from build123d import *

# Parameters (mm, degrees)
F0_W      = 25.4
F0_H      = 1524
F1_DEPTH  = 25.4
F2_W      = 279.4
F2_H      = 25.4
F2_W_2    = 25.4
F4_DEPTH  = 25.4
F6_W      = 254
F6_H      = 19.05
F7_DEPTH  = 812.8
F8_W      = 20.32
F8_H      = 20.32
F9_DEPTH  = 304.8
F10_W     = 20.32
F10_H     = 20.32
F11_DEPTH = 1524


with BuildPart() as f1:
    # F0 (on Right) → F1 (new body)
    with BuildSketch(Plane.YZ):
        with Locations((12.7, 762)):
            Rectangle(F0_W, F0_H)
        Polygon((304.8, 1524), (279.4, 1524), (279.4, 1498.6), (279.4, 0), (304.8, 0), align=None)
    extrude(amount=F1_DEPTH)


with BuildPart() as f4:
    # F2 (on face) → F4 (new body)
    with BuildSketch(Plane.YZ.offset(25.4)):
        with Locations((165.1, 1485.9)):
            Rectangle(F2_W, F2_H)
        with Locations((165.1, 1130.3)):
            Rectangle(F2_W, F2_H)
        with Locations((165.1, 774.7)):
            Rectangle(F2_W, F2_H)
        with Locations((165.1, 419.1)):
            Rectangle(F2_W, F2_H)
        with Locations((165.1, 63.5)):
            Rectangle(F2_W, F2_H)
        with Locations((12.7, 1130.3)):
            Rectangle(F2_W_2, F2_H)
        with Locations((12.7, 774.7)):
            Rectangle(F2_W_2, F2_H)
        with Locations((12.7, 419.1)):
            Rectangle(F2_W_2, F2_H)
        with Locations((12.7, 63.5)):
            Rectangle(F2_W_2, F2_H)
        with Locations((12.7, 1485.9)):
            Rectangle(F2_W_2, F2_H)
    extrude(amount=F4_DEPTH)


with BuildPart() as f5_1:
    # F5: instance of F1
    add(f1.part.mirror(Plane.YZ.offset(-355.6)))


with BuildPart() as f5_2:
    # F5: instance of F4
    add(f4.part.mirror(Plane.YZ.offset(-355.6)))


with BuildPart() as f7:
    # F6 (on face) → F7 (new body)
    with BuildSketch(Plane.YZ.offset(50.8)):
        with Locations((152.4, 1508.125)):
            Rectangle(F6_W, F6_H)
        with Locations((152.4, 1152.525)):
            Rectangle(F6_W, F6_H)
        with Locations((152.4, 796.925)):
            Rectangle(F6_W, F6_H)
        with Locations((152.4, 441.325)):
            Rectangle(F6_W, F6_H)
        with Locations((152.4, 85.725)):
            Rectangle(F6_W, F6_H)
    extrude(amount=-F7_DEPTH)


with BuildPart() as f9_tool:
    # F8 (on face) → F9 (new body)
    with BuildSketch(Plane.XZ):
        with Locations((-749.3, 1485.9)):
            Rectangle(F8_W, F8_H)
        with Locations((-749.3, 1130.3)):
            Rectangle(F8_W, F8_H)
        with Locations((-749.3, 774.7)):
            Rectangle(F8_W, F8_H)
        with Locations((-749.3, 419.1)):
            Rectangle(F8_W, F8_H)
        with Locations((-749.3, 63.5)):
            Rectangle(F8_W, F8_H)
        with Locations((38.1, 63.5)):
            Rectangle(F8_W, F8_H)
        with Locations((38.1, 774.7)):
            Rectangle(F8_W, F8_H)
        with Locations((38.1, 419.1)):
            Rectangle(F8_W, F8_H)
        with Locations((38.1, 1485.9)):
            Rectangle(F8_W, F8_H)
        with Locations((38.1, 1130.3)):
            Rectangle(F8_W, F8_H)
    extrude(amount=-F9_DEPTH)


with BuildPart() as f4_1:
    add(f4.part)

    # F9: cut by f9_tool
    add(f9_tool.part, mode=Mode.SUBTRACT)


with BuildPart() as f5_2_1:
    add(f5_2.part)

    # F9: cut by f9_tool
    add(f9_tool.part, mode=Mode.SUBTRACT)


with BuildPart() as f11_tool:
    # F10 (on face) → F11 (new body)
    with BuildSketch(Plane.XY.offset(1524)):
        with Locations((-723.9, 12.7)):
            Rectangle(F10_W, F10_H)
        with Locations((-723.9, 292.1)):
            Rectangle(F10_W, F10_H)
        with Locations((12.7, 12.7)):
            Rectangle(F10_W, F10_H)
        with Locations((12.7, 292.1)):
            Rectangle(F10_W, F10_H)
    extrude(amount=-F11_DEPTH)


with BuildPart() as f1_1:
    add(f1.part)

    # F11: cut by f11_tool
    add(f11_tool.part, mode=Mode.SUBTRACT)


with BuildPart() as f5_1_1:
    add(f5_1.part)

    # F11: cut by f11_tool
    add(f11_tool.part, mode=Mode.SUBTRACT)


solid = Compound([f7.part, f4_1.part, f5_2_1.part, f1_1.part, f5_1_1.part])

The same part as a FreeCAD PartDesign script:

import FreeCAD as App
import Part
import Sketcher
from FreeCAD import Vector
Q = App.Units.Quantity


def add_polygon(sketch, points):
    """Adds a closed chain of lines whose ends are joined by coincident constraints."""
    first, n = sketch.GeometryCount, len(points)
    for a, b in zip(points, points[1:] + points[:1]):
        sketch.addGeometry(Part.LineSegment(App.Vector(*a, 0), App.Vector(*b, 0)), False)
    for i in range(n):
        sketch.addConstraint(Sketcher.Constraint("Coincident", first + i, 2, first + (i + 1) % n, 1))

doc = App.newDocument("Part")
body = doc.addObject("PartDesign::Body", "Body")
body.AllowCompound = True

# Sketch on YZ plane
sketch1 = body.newObject("Sketcher::SketchObject", "Sketch")
sketch1.AttachmentSupport = (doc.getObject("YZ_Plane"), [""])
sketch1.MapMode = "FlatFace"
add_polygon(sketch1, [(0, 1524), (0, 0), (25, 0), (25, 1524)])  # lines 0-3
add_polygon(sketch1, [(305, 1524), (279, 1524), (279, 0), (305, 0)])  # lines 4-7
sketch1.addConstraint(Sketcher.Constraint("Vertical", 0))
sketch1.addConstraint(Sketcher.Constraint("Horizontal", 1))
sketch1.addConstraint(Sketcher.Constraint("Vertical", 2))
sketch1.addConstraint(Sketcher.Constraint("Horizontal", 3))
sketch1.addConstraint(Sketcher.Constraint("Horizontal", 4))
sketch1.addConstraint(Sketcher.Constraint("Vertical", 5))
sketch1.addConstraint(Sketcher.Constraint("Horizontal", 6))
sketch1.addConstraint(Sketcher.Constraint("Vertical", 7))
sketch1.addConstraint(Sketcher.Constraint("Coincident", 0, 2, -1, 1))
sketch1.addConstraint(Sketcher.Constraint("PointOnObject", 5, 2, -1))
sketch1.addConstraint(Sketcher.Constraint("Horizontal", 3, 2, 4, 2))
sketch1.addConstraint(Sketcher.Constraint("Equal", 3, 4))
sketch1.addConstraint(Sketcher.Constraint("DistanceX", 1, 1, 1, 2, Q("1 in")))
sketch1.addConstraint(Sketcher.Constraint("DistanceY", 0, 2, 0, 1, Q("60 in")))
sketch1.addConstraint(Sketcher.Constraint("DistanceX", -1, 1, 4, 2, Q("11 in")))
pad1 = body.newObject("PartDesign::Pad", "Pad")
pad1.Profile = sketch1
pad1.Length = Q("1 in")
body2 = doc.addObject("PartDesign::Body", "Body001")
body2.AllowCompound = True

# Sketch on YZ plane
sketch2 = body2.newObject("Sketcher::SketchObject", "Sketch001")
sketch2.AttachmentSupport = (doc.getObject("YZ_Plane001"), [""])
sketch2.MapMode = "FlatFace"
sketch2.AttachmentOffset = App.Placement(Vector(0, 0, 1 * 25.4), App.Rotation())
add_polygon(sketch2, [(305, 1473), (305, 1499), (0, 1499), (0, 1473)])  # lines 0-3
add_polygon(sketch2, [(305, 1118), (305, 1143), (0, 1143), (0, 1118)])  # lines 4-7
add_polygon(sketch2, [(305, 762), (305, 787), (0, 787), (0, 762)])  # lines 8-11
add_polygon(sketch2, [(305, 406), (305, 432), (0, 432), (0, 406)])  # lines 12-15
add_polygon(sketch2, [(305, 51), (305, 76), (0, 76), (0, 51)])  # lines 16-19
sketch2.addConstraint(Sketcher.Constraint("Vertical", 0))
sketch2.addConstraint(Sketcher.Constraint("Horizontal", 1))
sketch2.addConstraint(Sketcher.Constraint("Vertical", 2))
sketch2.addConstraint(Sketcher.Constraint("Horizontal", 3))
sketch2.addConstraint(Sketcher.Constraint("Vertical", 4))
sketch2.addConstraint(Sketcher.Constraint("Horizontal", 5))
sketch2.addConstraint(Sketcher.Constraint("Vertical", 6))
sketch2.addConstraint(Sketcher.Constraint("Horizontal", 7))
sketch2.addConstraint(Sketcher.Constraint("Vertical", 8))
sketch2.addConstraint(Sketcher.Constraint("Horizontal", 9))
sketch2.addConstraint(Sketcher.Constraint("Vertical", 10))
sketch2.addConstraint(Sketcher.Constraint("Horizontal", 11))
sketch2.addConstraint(Sketcher.Constraint("Vertical", 12))
sketch2.addConstraint(Sketcher.Constraint("Horizontal", 13))
sketch2.addConstraint(Sketcher.Constraint("Vertical", 14))
sketch2.addConstraint(Sketcher.Constraint("Horizontal", 15))
sketch2.addConstraint(Sketcher.Constraint("Vertical", 16))
sketch2.addConstraint(Sketcher.Constraint("Horizontal", 17))
sketch2.addConstraint(Sketcher.Constraint("Vertical", 18))
sketch2.addConstraint(Sketcher.Constraint("Horizontal", 19))
sketch2.addConstraint(Sketcher.Constraint("PointOnObject", 1, 2, -2))
sketch2.addConstraint(Sketcher.Constraint("PointOnObject", 5, 2, -2))
sketch2.addConstraint(Sketcher.Constraint("PointOnObject", 9, 2, -2))
sketch2.addConstraint(Sketcher.Constraint("PointOnObject", 13, 2, -2))
sketch2.addConstraint(Sketcher.Constraint("PointOnObject", 17, 2, -2))
sketch2.addConstraint(Sketcher.Constraint("Vertical", 3, 2, 4, 2))
sketch2.addConstraint(Sketcher.Constraint("Vertical", 7, 2, 8, 2))
sketch2.addConstraint(Sketcher.Constraint("Vertical", 11, 2, 12, 2))
sketch2.addConstraint(Sketcher.Constraint("Vertical", 15, 2, 16, 2))
sketch2.addConstraint(Sketcher.Constraint("Equal", 2, 4))
sketch2.addConstraint(Sketcher.Constraint("Equal", 6, 8))
sketch2.addConstraint(Sketcher.Constraint("Equal", 10, 12))
sketch2.addConstraint(Sketcher.Constraint("Equal", 14, 16))
sketch2.addConstraint(Sketcher.Constraint("DistanceX", 1, 2, 1, 1, Q("12 in")))
sketch2.addConstraint(Sketcher.Constraint("DistanceY", 0, 1, 0, 2, Q("1 in")))
sketch2.addConstraint(Sketcher.Constraint("DistanceY", -1, 1, 0, 2, Q("59 in")))
sketch2.addConstraint(Sketcher.Constraint("DistanceY", -1, 1, 4, 2, Q("45 in")))
sketch2.addConstraint(Sketcher.Constraint("DistanceY", -1, 1, 8, 2, Q("31 in")))
sketch2.addConstraint(Sketcher.Constraint("DistanceY", -1, 1, 12, 2, Q("17 in")))
sketch2.addConstraint(Sketcher.Constraint("DistanceY", -1, 1, 16, 2, Q("3 in")))
pad2 = body2.newObject("PartDesign::Pad", "Pad001")
pad2.Profile = sketch2
pad2.Length = Q("1 in")
body3 = doc.addObject("PartDesign::Body", "Body002")
body3.AllowCompound = True
doc.recompute()

mirroring = doc.addObject("Part::Mirroring", "Mirroring")
mirroring.Source = body
mirroring.Base = Vector(-355.6, 0, 0)
mirroring.Normal = Vector(1, 0, 0)
body3.BaseFeature = mirroring
doc.recompute()
body4 = doc.addObject("PartDesign::Body", "Body003")
body4.AllowCompound = True
doc.recompute()

mirroring2 = doc.addObject("Part::Mirroring", "Mirroring001")
mirroring2.Source = body2
mirroring2.Base = Vector(-355.6, 0, 0)
mirroring2.Normal = Vector(1, 0, 0)
body4.BaseFeature = mirroring2
doc.recompute()
body5 = doc.addObject("PartDesign::Body", "Body004")
body5.AllowCompound = True

# Sketch on YZ plane
sketch3 = body5.newObject("Sketcher::SketchObject", "Sketch002")
sketch3.AttachmentSupport = (doc.getObject("YZ_Plane004"), [""])
sketch3.MapMode = "FlatFace"
sketch3.AttachmentOffset = App.Placement(Vector(0, 0, 2 * 25.4), App.Rotation())
add_polygon(sketch3, [(25, 1518), (25, 1499), (279, 1499), (279, 1518)])  # lines 0-3
add_polygon(sketch3, [(25, 1162), (25, 1143), (279, 1143), (279, 1162)])  # lines 4-7
add_polygon(sketch3, [(25, 806), (25, 787), (279, 787), (279, 806)])  # lines 8-11
add_polygon(sketch3, [(25, 451), (25, 432), (279, 432), (279, 451)])  # lines 12-15
add_polygon(sketch3, [(25, 95), (25, 76), (279, 76), (279, 95)])  # lines 16-19
sketch3.addConstraint(Sketcher.Constraint("Vertical", 0))
sketch3.addConstraint(Sketcher.Constraint("Horizontal", 1))
sketch3.addConstraint(Sketcher.Constraint("Vertical", 2))
sketch3.addConstraint(Sketcher.Constraint("Horizontal", 3))
sketch3.addConstraint(Sketcher.Constraint("Vertical", 4))
sketch3.addConstraint(Sketcher.Constraint("Horizontal", 5))
sketch3.addConstraint(Sketcher.Constraint("Vertical", 6))
sketch3.addConstraint(Sketcher.Constraint("Horizontal", 7))
sketch3.addConstraint(Sketcher.Constraint("Vertical", 8))
sketch3.addConstraint(Sketcher.Constraint("Horizontal", 9))
sketch3.addConstraint(Sketcher.Constraint("Vertical", 10))
sketch3.addConstraint(Sketcher.Constraint("Horizontal", 11))
sketch3.addConstraint(Sketcher.Constraint("Vertical", 12))
sketch3.addConstraint(Sketcher.Constraint("Horizontal", 13))
sketch3.addConstraint(Sketcher.Constraint("Vertical", 14))
sketch3.addConstraint(Sketcher.Constraint("Horizontal", 15))
sketch3.addConstraint(Sketcher.Constraint("Vertical", 16))
sketch3.addConstraint(Sketcher.Constraint("Horizontal", 17))
sketch3.addConstraint(Sketcher.Constraint("Vertical", 18))
sketch3.addConstraint(Sketcher.Constraint("Horizontal", 19))
sketch3.addConstraint(Sketcher.Constraint("Vertical", 3, 2, 4, 2))
sketch3.addConstraint(Sketcher.Constraint("Vertical", 2, 2, 5, 2))
sketch3.addConstraint(Sketcher.Constraint("Vertical", 7, 2, 8, 2))
sketch3.addConstraint(Sketcher.Constraint("Vertical", 6, 2, 9, 2))
sketch3.addConstraint(Sketcher.Constraint("Vertical", 11, 2, 12, 2))
sketch3.addConstraint(Sketcher.Constraint("Vertical", 10, 2, 13, 2))
sketch3.addConstraint(Sketcher.Constraint("Vertical", 15, 2, 16, 2))
sketch3.addConstraint(Sketcher.Constraint("Vertical", 14, 2, 17, 2))
sketch3.addConstraint(Sketcher.Constraint("Equal", 2, 4))
sketch3.addConstraint(Sketcher.Constraint("Equal", 6, 8))
sketch3.addConstraint(Sketcher.Constraint("Equal", 10, 12))
sketch3.addConstraint(Sketcher.Constraint("Equal", 14, 16))
sketch3.addConstraint(Sketcher.Constraint("DistanceX", 1, 1, 1, 2, Q("10 in")))
sketch3.addConstraint(Sketcher.Constraint("DistanceX", -1, 1, 0, 2, Q("1 in")))
sketch3.addConstraint(Sketcher.Constraint("DistanceY", -1, 1, 0, 2, Q("59 in")))
sketch3.addConstraint(Sketcher.Constraint("DistanceY", -1, 1, 4, 2, Q("45 in")))
sketch3.addConstraint(Sketcher.Constraint("DistanceY", -1, 1, 8, 2, Q("31 in")))
sketch3.addConstraint(Sketcher.Constraint("DistanceY", -1, 1, 12, 2, Q("17 in")))
sketch3.addConstraint(Sketcher.Constraint("DistanceY", -1, 1, 16, 2, Q("3 in")))
sketch3.addConstraint(Sketcher.Constraint("DistanceY", 0, 2, 0, 1, Q("0.75 in")))
pad3 = body5.newObject("PartDesign::Pad", "Pad002")
pad3.Profile = sketch3
pad3.Length = Q("32 in")
pad3.Reversed = True
body6 = doc.addObject("PartDesign::Body", "Body005")
body6.AllowCompound = True

# Sketch on XZ plane
sketch4 = body6.newObject("Sketcher::SketchObject", "Sketch003")
sketch4.AttachmentSupport = (doc.getObject("XZ_Plane005"), [""])
sketch4.MapMode = "FlatFace"
add_polygon(sketch4, [(-759, 1496), (-759, 1476), (-739, 1476), (-739, 1496)])  # lines 0-3
add_polygon(sketch4, [(-759, 1140), (-759, 1120), (-739, 1120), (-739, 1140)])  # lines 4-7
add_polygon(sketch4, [(-759, 785), (-759, 765), (-739, 765), (-739, 785)])  # lines 8-11
add_polygon(sketch4, [(-759, 429), (-759, 409), (-739, 409), (-739, 429)])  # lines 12-15
add_polygon(sketch4, [(-759, 74), (-759, 53), (-739, 53), (-739, 74)])  # lines 16-19
add_polygon(sketch4, [(28, 74), (28, 53), (48, 53), (48, 74)])  # lines 20-23
add_polygon(sketch4, [(28, 785), (28, 765), (48, 765), (48, 785)])  # lines 24-27
add_polygon(sketch4, [(28, 429), (28, 409), (48, 409), (48, 429)])  # lines 28-31
add_polygon(sketch4, [(28, 1496), (28, 1476), (48, 1476), (48, 1496)])  # lines 32-35
add_polygon(sketch4, [(28, 1140), (28, 1120), (48, 1120), (48, 1140)])  # lines 36-39
sketch4.addConstraint(Sketcher.Constraint("Vertical", 0))
sketch4.addConstraint(Sketcher.Constraint("Horizontal", 1))
sketch4.addConstraint(Sketcher.Constraint("Vertical", 2))
sketch4.addConstraint(Sketcher.Constraint("Horizontal", 3))
sketch4.addConstraint(Sketcher.Constraint("Vertical", 4))
sketch4.addConstraint(Sketcher.Constraint("Horizontal", 5))
sketch4.addConstraint(Sketcher.Constraint("Vertical", 6))
sketch4.addConstraint(Sketcher.Constraint("Horizontal", 7))
sketch4.addConstraint(Sketcher.Constraint("Vertical", 8))
sketch4.addConstraint(Sketcher.Constraint("Horizontal", 9))
sketch4.addConstraint(Sketcher.Constraint("Vertical", 10))
sketch4.addConstraint(Sketcher.Constraint("Horizontal", 11))
sketch4.addConstraint(Sketcher.Constraint("Vertical", 12))
sketch4.addConstraint(Sketcher.Constraint("Horizontal", 13))
sketch4.addConstraint(Sketcher.Constraint("Vertical", 14))
sketch4.addConstraint(Sketcher.Constraint("Horizontal", 15))
sketch4.addConstraint(Sketcher.Constraint("Vertical", 16))
sketch4.addConstraint(Sketcher.Constraint("Horizontal", 17))
sketch4.addConstraint(Sketcher.Constraint("Vertical", 18))
sketch4.addConstraint(Sketcher.Constraint("Horizontal", 19))
sketch4.addConstraint(Sketcher.Constraint("Vertical", 20))
sketch4.addConstraint(Sketcher.Constraint("Horizontal", 21))
sketch4.addConstraint(Sketcher.Constraint("Vertical", 22))
sketch4.addConstraint(Sketcher.Constraint("Horizontal", 23))
sketch4.addConstraint(Sketcher.Constraint("Vertical", 24))
sketch4.addConstraint(Sketcher.Constraint("Horizontal", 25))
sketch4.addConstraint(Sketcher.Constraint("Vertical", 26))
sketch4.addConstraint(Sketcher.Constraint("Horizontal", 27))
sketch4.addConstraint(Sketcher.Constraint("Vertical", 28))
sketch4.addConstraint(Sketcher.Constraint("Horizontal", 29))
sketch4.addConstraint(Sketcher.Constraint("Vertical", 30))
sketch4.addConstraint(Sketcher.Constraint("Horizontal", 31))
sketch4.addConstraint(Sketcher.Constraint("Vertical", 32))
sketch4.addConstraint(Sketcher.Constraint("Horizontal", 33))
sketch4.addConstraint(Sketcher.Constraint("Vertical", 34))
sketch4.addConstraint(Sketcher.Constraint("Horizontal", 35))
sketch4.addConstraint(Sketcher.Constraint("Vertical", 36))
sketch4.addConstraint(Sketcher.Constraint("Horizontal", 37))
sketch4.addConstraint(Sketcher.Constraint("Vertical", 38))
sketch4.addConstraint(Sketcher.Constraint("Horizontal", 39))
sketch4.addConstraint(Sketcher.Constraint("Horizontal", 17, 2, 20, 2))
sketch4.addConstraint(Sketcher.Constraint("Horizontal", 19, 2, 22, 2))
sketch4.addConstraint(Sketcher.Constraint("Horizontal", 9, 2, 24, 2))
sketch4.addConstraint(Sketcher.Constraint("Horizontal", 11, 2, 26, 2))
sketch4.addConstraint(Sketcher.Constraint("Horizontal", 13, 2, 28, 2))
sketch4.addConstraint(Sketcher.Constraint("Horizontal", 15, 2, 30, 2))
sketch4.addConstraint(Sketcher.Constraint("Horizontal", 1, 2, 32, 2))
sketch4.addConstraint(Sketcher.Constraint("Horizontal", 3, 2, 34, 2))
sketch4.addConstraint(Sketcher.Constraint("Horizontal", 5, 2, 36, 2))
sketch4.addConstraint(Sketcher.Constraint("Horizontal", 7, 2, 38, 2))
sketch4.addConstraint(Sketcher.Constraint("Vertical", 3, 2, 4, 2))
sketch4.addConstraint(Sketcher.Constraint("Vertical", 2, 2, 5, 2))
sketch4.addConstraint(Sketcher.Constraint("Vertical", 7, 2, 8, 2))
sketch4.addConstraint(Sketcher.Constraint("Vertical", 6, 2, 9, 2))
sketch4.addConstraint(Sketcher.Constraint("Vertical", 11, 2, 12, 2))
sketch4.addConstraint(Sketcher.Constraint("Vertical", 10, 2, 13, 2))
sketch4.addConstraint(Sketcher.Constraint("Vertical", 15, 2, 16, 2))
sketch4.addConstraint(Sketcher.Constraint("Vertical", 14, 2, 17, 2))
sketch4.addConstraint(Sketcher.Constraint("Vertical", 23, 2, 24, 2))
sketch4.addConstraint(Sketcher.Constraint("Vertical", 22, 2, 25, 2))
sketch4.addConstraint(Sketcher.Constraint("Vertical", 27, 2, 28, 2))
sketch4.addConstraint(Sketcher.Constraint("Vertical", 26, 2, 29, 2))
sketch4.addConstraint(Sketcher.Constraint("Vertical", 31, 2, 32, 2))
sketch4.addConstraint(Sketcher.Constraint("Vertical", 30, 2, 33, 2))
sketch4.addConstraint(Sketcher.Constraint("Vertical", 35, 2, 36, 2))
sketch4.addConstraint(Sketcher.Constraint("Vertical", 34, 2, 37, 2))
sketch4.addConstraint(Sketcher.Constraint("Equal", 19, 21))
sketch4.addConstraint(Sketcher.Constraint("Equal", 39, 0))
sketch4.addConstraint(Sketcher.Constraint("Equal", 2, 4))
sketch4.addConstraint(Sketcher.Constraint("Equal", 6, 8))
sketch4.addConstraint(Sketcher.Constraint("Equal", 10, 12))
sketch4.addConstraint(Sketcher.Constraint("Equal", 14, 16))
sketch4.addConstraint(Sketcher.Constraint("DistanceX", 1, 1, 1, 2, Q("0.8 in")))
sketch4.addConstraint(Sketcher.Constraint("DistanceY", 4, 2, 0, 2, Q("14 in")))
sketch4.addConstraint(Sketcher.Constraint("DistanceY", 8, 2, 4, 2, Q("14 in")))
sketch4.addConstraint(Sketcher.Constraint("DistanceY", 12, 2, 8, 2, Q("14 in")))
sketch4.addConstraint(Sketcher.Constraint("DistanceY", 16, 2, 12, 2, Q("14 in")))
sketch4.addConstraint(Sketcher.Constraint("DistanceX", 16, 2, 20, 2, Q("31 in")))
sketch4.addConstraint(Sketcher.Constraint("DistanceX", 0, 2, -1, 1, Q("29.9 in")))
sketch4.addConstraint(Sketcher.Constraint("DistanceY", -1, 1, 0, 2, Q("58.1 in")))
pad4 = body6.newObject("PartDesign::Pad", "Pad003")
pad4.Profile = sketch4
pad4.Length = Q("12 in")
pad4.Reversed = True
body2.AllowCompound = True
doc.recompute()

body7 = doc.addObject("PartDesign::Body", "Body006")
body7.BaseFeature = body6
boolean = body2.newObject("PartDesign::Boolean", "Boolean")
boolean.Type = "Cut"
boolean.addObjects([body7])
doc.recompute()
body4.AllowCompound = True
doc.recompute()

boolean2 = body4.newObject("PartDesign::Boolean", "Boolean001")
boolean2.Type = "Cut"
boolean2.addObjects([body6])
body8 = doc.addObject("PartDesign::Body", "Body007")
body8.AllowCompound = True

# Sketch on XY plane
sketch5 = body8.newObject("Sketcher::SketchObject", "Sketch004")
sketch5.AttachmentSupport = (doc.getObject("XY_Plane007"), [""])
sketch5.MapMode = "FlatFace"
sketch5.AttachmentOffset = App.Placement(Vector(0, 0, 60 * 25.4), App.Rotation())
add_polygon(sketch5, [(-734, 23), (-734, 3), (-714, 3), (-714, 23)])  # lines 0-3
add_polygon(sketch5, [(-734, 302), (-734, 282), (-714, 282), (-714, 302)])  # lines 4-7
add_polygon(sketch5, [(3, 23), (3, 3), (23, 3), (23, 23)])  # lines 8-11
add_polygon(sketch5, [(3, 302), (3, 282), (23, 282), (23, 302)])  # lines 12-15
sketch5.addConstraint(Sketcher.Constraint("Vertical", 0))
sketch5.addConstraint(Sketcher.Constraint("Horizontal", 1))
sketch5.addConstraint(Sketcher.Constraint("Vertical", 2))
sketch5.addConstraint(Sketcher.Constraint("Horizontal", 3))
sketch5.addConstraint(Sketcher.Constraint("Vertical", 4))
sketch5.addConstraint(Sketcher.Constraint("Horizontal", 5))
sketch5.addConstraint(Sketcher.Constraint("Vertical", 6))
sketch5.addConstraint(Sketcher.Constraint("Horizontal", 7))
sketch5.addConstraint(Sketcher.Constraint("Vertical", 8))
sketch5.addConstraint(Sketcher.Constraint("Horizontal", 9))
sketch5.addConstraint(Sketcher.Constraint("Vertical", 10))
sketch5.addConstraint(Sketcher.Constraint("Horizontal", 11))
sketch5.addConstraint(Sketcher.Constraint("Vertical", 12))
sketch5.addConstraint(Sketcher.Constraint("Horizontal", 13))
sketch5.addConstraint(Sketcher.Constraint("Vertical", 14))
sketch5.addConstraint(Sketcher.Constraint("Horizontal", 15))
sketch5.addConstraint(Sketcher.Constraint("Horizontal", 1, 2, 8, 2))
sketch5.addConstraint(Sketcher.Constraint("Horizontal", 3, 2, 10, 2))
sketch5.addConstraint(Sketcher.Constraint("Horizontal", 5, 2, 12, 2))
sketch5.addConstraint(Sketcher.Constraint("Horizontal", 7, 2, 14, 2))
sketch5.addConstraint(Sketcher.Constraint("Vertical", 3, 2, 4, 2))
sketch5.addConstraint(Sketcher.Constraint("Vertical", 2, 2, 5, 2))
sketch5.addConstraint(Sketcher.Constraint("Vertical", 11, 2, 12, 2))
sketch5.addConstraint(Sketcher.Constraint("Vertical", 10, 2, 13, 2))
sketch5.addConstraint(Sketcher.Constraint("Equal", 7, 9))
sketch5.addConstraint(Sketcher.Constraint("Equal", 15, 0))
sketch5.addConstraint(Sketcher.Constraint("Equal", 2, 4))
sketch5.addConstraint(Sketcher.Constraint("DistanceX", 1, 1, 1, 2, Q("0.8 in")))
sketch5.addConstraint(Sketcher.Constraint("DistanceY", 0, 2, 4, 2, Q("11 in")))
sketch5.addConstraint(Sketcher.Constraint("DistanceX", 0, 2, 8, 2, Q("29 in")))
sketch5.addConstraint(Sketcher.Constraint("DistanceX", 0, 2, -1, 1, Q("28.9 in")))
sketch5.addConstraint(Sketcher.Constraint("DistanceY", -1, 1, 0, 2, Q("0.1 in")))
pad5 = body8.newObject("PartDesign::Pad", "Pad004")
pad5.Profile = sketch5
pad5.Length = Q("60 in")
pad5.Reversed = True
body.AllowCompound = True
doc.recompute()

body9 = doc.addObject("PartDesign::Body", "Body008")
body9.BaseFeature = body8
boolean3 = body.newObject("PartDesign::Boolean", "Boolean002")
boolean3.Type = "Cut"
boolean3.addObjects([body9])
doc.recompute()
body3.AllowCompound = True
doc.recompute()

boolean4 = body3.newObject("PartDesign::Boolean", "Boolean003")
boolean4.Type = "Cut"
boolean4.addObjects([body8])
mirroring.Visibility = False
mirroring2.Visibility = False

doc.recompute()
